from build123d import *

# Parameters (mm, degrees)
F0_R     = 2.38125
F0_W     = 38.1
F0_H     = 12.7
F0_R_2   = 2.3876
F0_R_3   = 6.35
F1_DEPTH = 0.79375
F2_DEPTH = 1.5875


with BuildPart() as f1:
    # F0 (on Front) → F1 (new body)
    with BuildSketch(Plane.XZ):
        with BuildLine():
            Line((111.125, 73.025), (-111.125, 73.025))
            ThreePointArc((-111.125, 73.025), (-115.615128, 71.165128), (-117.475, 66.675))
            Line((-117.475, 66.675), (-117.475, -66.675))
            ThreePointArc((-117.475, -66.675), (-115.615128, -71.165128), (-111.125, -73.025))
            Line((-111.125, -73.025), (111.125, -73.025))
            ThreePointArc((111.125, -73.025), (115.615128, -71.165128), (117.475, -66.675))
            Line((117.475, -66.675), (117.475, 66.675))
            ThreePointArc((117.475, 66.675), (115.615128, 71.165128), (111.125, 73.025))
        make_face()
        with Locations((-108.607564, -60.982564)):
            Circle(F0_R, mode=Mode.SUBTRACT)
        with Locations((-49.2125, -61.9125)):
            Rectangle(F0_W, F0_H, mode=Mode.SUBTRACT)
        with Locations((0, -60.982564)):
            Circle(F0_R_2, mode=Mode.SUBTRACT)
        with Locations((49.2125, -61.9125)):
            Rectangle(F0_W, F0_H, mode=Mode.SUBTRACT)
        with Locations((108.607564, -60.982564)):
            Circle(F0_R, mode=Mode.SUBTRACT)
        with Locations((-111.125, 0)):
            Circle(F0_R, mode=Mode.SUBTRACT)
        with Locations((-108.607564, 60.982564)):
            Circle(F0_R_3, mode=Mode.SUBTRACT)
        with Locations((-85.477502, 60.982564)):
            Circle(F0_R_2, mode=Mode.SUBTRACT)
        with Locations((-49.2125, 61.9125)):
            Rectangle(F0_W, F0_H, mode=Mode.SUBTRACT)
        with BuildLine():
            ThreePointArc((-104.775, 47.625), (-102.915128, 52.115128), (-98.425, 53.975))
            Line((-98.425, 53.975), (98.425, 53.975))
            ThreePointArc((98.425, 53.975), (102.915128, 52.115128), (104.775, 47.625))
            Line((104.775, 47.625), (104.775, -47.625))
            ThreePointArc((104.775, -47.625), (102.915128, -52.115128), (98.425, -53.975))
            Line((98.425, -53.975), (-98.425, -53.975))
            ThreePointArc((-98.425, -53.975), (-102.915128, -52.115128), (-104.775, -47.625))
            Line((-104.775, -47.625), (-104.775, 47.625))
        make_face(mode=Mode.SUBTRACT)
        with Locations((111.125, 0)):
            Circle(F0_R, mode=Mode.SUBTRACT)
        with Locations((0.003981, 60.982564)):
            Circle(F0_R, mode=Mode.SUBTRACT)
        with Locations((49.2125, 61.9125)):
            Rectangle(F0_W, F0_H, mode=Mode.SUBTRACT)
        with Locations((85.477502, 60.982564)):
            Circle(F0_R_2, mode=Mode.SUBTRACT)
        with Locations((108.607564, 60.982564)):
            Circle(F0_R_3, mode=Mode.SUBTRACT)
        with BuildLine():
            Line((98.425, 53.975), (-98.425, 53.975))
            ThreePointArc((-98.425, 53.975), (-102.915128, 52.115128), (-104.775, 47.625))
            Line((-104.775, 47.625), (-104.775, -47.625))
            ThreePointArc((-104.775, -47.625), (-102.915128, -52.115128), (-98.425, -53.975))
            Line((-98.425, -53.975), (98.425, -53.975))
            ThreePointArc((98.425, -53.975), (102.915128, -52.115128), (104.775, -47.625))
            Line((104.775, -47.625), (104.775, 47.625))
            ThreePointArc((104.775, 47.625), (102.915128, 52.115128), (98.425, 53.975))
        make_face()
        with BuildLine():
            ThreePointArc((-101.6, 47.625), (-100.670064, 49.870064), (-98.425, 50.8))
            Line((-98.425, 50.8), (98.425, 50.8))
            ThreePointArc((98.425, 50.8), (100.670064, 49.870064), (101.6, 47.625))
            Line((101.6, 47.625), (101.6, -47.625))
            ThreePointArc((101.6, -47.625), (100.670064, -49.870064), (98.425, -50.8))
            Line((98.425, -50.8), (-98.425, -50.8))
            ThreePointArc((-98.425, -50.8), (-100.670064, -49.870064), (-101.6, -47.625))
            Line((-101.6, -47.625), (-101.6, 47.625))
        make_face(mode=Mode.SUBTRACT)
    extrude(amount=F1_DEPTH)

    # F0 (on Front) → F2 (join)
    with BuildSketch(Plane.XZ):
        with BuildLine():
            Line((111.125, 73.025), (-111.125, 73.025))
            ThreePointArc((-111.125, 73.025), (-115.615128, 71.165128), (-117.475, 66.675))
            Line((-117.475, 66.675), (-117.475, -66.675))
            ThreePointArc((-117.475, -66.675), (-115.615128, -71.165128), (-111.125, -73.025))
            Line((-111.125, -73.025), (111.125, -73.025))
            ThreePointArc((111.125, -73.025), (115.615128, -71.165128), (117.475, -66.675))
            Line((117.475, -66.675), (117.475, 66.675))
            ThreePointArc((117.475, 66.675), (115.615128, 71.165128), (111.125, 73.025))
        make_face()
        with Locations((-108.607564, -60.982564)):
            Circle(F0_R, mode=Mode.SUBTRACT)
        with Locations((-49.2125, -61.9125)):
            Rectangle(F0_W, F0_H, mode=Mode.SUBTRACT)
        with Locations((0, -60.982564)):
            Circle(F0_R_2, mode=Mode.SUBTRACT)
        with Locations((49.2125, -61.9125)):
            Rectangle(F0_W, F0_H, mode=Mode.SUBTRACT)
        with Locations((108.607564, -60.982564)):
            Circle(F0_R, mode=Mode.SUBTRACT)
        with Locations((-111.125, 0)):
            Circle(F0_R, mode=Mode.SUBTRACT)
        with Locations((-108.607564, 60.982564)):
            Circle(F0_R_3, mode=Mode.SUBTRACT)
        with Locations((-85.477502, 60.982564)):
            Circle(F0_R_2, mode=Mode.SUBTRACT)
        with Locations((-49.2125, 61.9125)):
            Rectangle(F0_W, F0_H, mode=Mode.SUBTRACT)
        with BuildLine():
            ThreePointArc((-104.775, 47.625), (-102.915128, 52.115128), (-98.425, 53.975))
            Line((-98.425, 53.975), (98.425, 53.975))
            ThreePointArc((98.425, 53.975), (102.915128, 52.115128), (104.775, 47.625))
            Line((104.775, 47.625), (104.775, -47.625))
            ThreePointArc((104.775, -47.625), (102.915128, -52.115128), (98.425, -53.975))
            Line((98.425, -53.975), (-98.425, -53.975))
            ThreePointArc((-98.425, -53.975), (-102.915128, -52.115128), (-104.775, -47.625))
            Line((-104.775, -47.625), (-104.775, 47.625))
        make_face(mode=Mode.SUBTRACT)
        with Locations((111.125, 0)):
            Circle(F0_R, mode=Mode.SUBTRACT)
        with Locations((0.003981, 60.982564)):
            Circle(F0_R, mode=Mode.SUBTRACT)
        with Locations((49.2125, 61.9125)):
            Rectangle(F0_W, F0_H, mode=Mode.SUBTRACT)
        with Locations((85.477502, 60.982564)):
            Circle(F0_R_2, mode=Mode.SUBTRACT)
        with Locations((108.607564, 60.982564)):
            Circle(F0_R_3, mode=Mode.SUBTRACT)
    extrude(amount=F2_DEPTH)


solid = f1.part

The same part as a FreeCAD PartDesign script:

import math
import FreeCAD as App
import Part
import Sketcher

V = App.Vector
Q = App.Units.Quantity

doc = App.newDocument("Part")
body = doc.addObject("PartDesign::Body", "Body")

# Sketch on XZ plane
sketch1 = doc.addObject("Sketcher::SketchObject", "Sketch")
body.addObject(sketch1)
sketch1.AttachmentSupport = (doc.XZ_Plane, [""])
sketch1.MapMode = "FlatFace"
sketch1.addGeometry(Part.LineSegment(V(111.1, 73, 0), V(-111.1, 73, 0)), False)
sketch1.addGeometry(Part.ArcOfCircle(Part.Circle(V(-111.1, 66.7, 0), V(0, 0, 1), 6.4), math.radians(90), math.radians(180)), False)
sketch1.addGeometry(Part.LineSegment(V(-117.5, 66.7, 0), V(-117.5, -66.7, 0)), False)
sketch1.addGeometry(Part.ArcOfCircle(Part.Circle(V(-111.1, -66.7, 0), V(0, 0, 1), 6.4), math.radians(-180), math.radians(-90)), False)
sketch1.addGeometry(Part.LineSegment(V(-111.1, -73, 0), V(111.1, -73, 0)), False)
sketch1.addGeometry(Part.ArcOfCircle(Part.Circle(V(111.1, -66.7, 0), V(0, 0, 1), 6.4), math.radians(-90), math.radians(0)), False)
sketch1.addGeometry(Part.LineSegment(V(117.5, -66.7, 0), V(117.5, 66.7, 0)), False)
sketch1.addGeometry(Part.ArcOfCircle(Part.Circle(V(111.1, 66.7, 0), V(0, 0, 1), 6.4), math.radians(0), math.radians(90)), False)
sketch1.addGeometry(Part.Circle(V(-108.6, -61, 0), V(0, 0, 1), 2.4), False)
sketch1.addGeometry(Part.LineSegment(V(-30.2, -68.3, 0), V(-68.3, -68.3, 0)), False)
sketch1.addGeometry(Part.LineSegment(V(-68.3, -68.3, 0), V(-68.3, -55.6, 0)), False)
sketch1.addGeometry(Part.LineSegment(V(-68.3, -55.6, 0), V(-30.2, -55.6, 0)), False)
sketch1.addGeometry(Part.LineSegment(V(-30.2, -55.6, 0), V(-30.2, -68.3, 0)), False)
sketch1.addGeometry(Part.Circle(V(0, -61, 0), V(0, 0, 1), 2.4), False)
sketch1.addGeometry(Part.LineSegment(V(68.3, -68.3, 0), V(30.2, -68.3, 0)), False)
sketch1.addGeometry(Part.LineSegment(V(30.2, -68.3, 0), V(30.2, -55.6, 0)), False)
sketch1.addGeometry(Part.LineSegment(V(30.2, -55.6, 0), V(68.3, -55.6, 0)), False)
sketch1.addGeometry(Part.LineSegment(V(68.3, -55.6, 0), V(68.3, -68.3, 0)), False)
sketch1.addGeometry(Part.Circle(V(108.6, -61, 0), V(0, 0, 1), 2.4), False)
sketch1.addGeometry(Part.Circle(V(-111.1, 0, 0), V(0, 0, 1), 2.4), False)
sketch1.addGeometry(Part.LineSegment(V(-101.6, -47.6, 0), V(-101.6, 47.6, 0)), False)
sketch1.addGeometry(Part.ArcOfCircle(Part.Circle(V(-98.4, 47.6, 0), V(0, 0, 1), 3.2), math.radians(90), math.radians(180)), False)
sketch1.addGeometry(Part.LineSegment(V(-98.4, 50.8, 0), V(98.4, 50.8, 0)), False)
sketch1.addGeometry(Part.ArcOfCircle(Part.Circle(V(98.4, 47.6, 0), V(0, 0, 1), 3.2), math.radians(0), math.radians(90)), False)
sketch1.addGeometry(Part.LineSegment(V(101.6, 47.6, 0), V(101.6, -47.6, 0)), False)
sketch1.addGeometry(Part.ArcOfCircle(Part.Circle(V(98.4, -47.6, 0), V(0, 0, 1), 3.2), math.radians(-90), math.radians(0)), False)
sketch1.addGeometry(Part.LineSegment(V(98.4, -50.8, 0), V(-98.4, -50.8, 0)), False)
sketch1.addGeometry(Part.ArcOfCircle(Part.Circle(V(-98.4, -47.6, 0), V(0, 0, 1), 3.2), math.radians(-180), math.radians(-90)), False)
sketch1.addGeometry(Part.Circle(V(-108.6, 61, 0), V(0, 0, 1), 6.3), False)
sketch1.addGeometry(Part.Circle(V(-85.5, 61, 0), V(0, 0, 1), 2.4), False)
sketch1.addGeometry(Part.LineSegment(V(-30.2, 55.6, 0), V(-68.3, 55.6, 0)), False)
sketch1.addGeometry(Part.LineSegment(V(-68.3, 55.6, 0), V(-68.3, 68.3, 0)), False)
sketch1.addGeometry(Part.LineSegment(V(-68.3, 68.3, 0), V(-30.2, 68.3, 0)), False)
sketch1.addGeometry(Part.LineSegment(V(-30.2, 68.3, 0), V(-30.2, 55.6, 0)), False)
sketch1.addGeometry(Part.Circle(V(111.1, 0, 0), V(0, 0, 1), 2.4), False)
sketch1.addGeometry(Part.Circle(V(0, 61, 0), V(0, 0, 1), 2.4), False)
sketch1.addGeometry(Part.LineSegment(V(68.3, 55.6, 0), V(30.2, 55.6, 0)), False)
sketch1.addGeometry(Part.LineSegment(V(30.2, 55.6, 0), V(30.2, 68.3, 0)), False)
sketch1.addGeometry(Part.LineSegment(V(30.2, 68.3, 0), V(68.3, 68.3, 0)), False)
sketch1.addGeometry(Part.LineSegment(V(68.3, 68.3, 0), V(68.3, 55.6, 0)), False)
sketch1.addGeometry(Part.Circle(V(85.5, 61, 0), V(0, 0, 1), 2.4), False)
sketch1.addGeometry(Part.Circle(V(108.6, 61, 0), V(0, 0, 1), 6.3), False)
sketch1.addConstraint(Sketcher.Constraint("Tangent", 0, 2, 1, 1))
sketch1.addConstraint(Sketcher.Constraint("Tangent", 1, 2, 2, 1))
sketch1.addConstraint(Sketcher.Constraint("Tangent", 2, 2, 3, 1))
sketch1.addConstraint(Sketcher.Constraint("Tangent", 3, 2, 4, 1))
sketch1.addConstraint(Sketcher.Constraint("Tangent", 4, 2, 5, 1))
sketch1.addConstraint(Sketcher.Constraint("Tangent", 5, 2, 6, 1))
sketch1.addConstraint(Sketcher.Constraint("Tangent", 6, 2, 7, 1))
sketch1.addConstraint(Sketcher.Constraint("Tangent", 7, 2, 0, 1))
sketch1.addConstraint(Sketcher.Constraint("Coincident", 9, 2, 10, 1))
sketch1.addConstraint(Sketcher.Constraint("Coincident", 10, 2, 11, 1))
sketch1.addConstraint(Sketcher.Constraint("Coincident", 11, 2, 12, 1))
sketch1.addConstraint(Sketcher.Constraint("Coincident", 12, 2, 9, 1))
sketch1.addConstraint(Sketcher.Constraint("Coincident", 14, 2, 15, 1))
sketch1.addConstraint(Sketcher.Constraint("Coincident", 15, 2, 16, 1))
sketch1.addConstraint(Sketcher.Constraint("Coincident", 16, 2, 17, 1))
sketch1.addConstraint(Sketcher.Constraint("Coincident", 17, 2, 14, 1))
sketch1.addConstraint(Sketcher.Constraint("Tangent", 20, 2, 21, 2))
sketch1.addConstraint(Sketcher.Constraint("Tangent", 21, 1, 22, 1))
sketch1.addConstraint(Sketcher.Constraint("Tangent", 22, 2, 23, 2))
sketch1.addConstraint(Sketcher.Constraint("Tangent", 23, 1, 24, 1))
sketch1.addConstraint(Sketcher.Constraint("Tangent", 24, 2, 25, 2))
sketch1.addConstraint(Sketcher.Constraint("Tangent", 25, 1, 26, 1))
sketch1.addConstraint(Sketcher.Constraint("Tangent", 26, 2, 27, 2))
sketch1.addConstraint(Sketcher.Constraint("Tangent", 27, 1, 20, 1))
sketch1.addConstraint(Sketcher.Constraint("Coincident", 30, 2, 31, 1))
sketch1.addConstraint(Sketcher.Constraint("Coincident", 31, 2, 32, 1))
sketch1.addConstraint(Sketcher.Constraint("Coincident", 32, 2, 33, 1))
sketch1.addConstraint(Sketcher.Constraint("Coincident", 33, 2, 30, 1))
sketch1.addConstraint(Sketcher.Constraint("Coincident", 36, 2, 37, 1))
sketch1.addConstraint(Sketcher.Constraint("Coincident", 37, 2, 38, 1))
sketch1.addConstraint(Sketcher.Constraint("Coincident", 38, 2, 39, 1))
sketch1.addConstraint(Sketcher.Constraint("Coincident", 39, 2, 36, 1))
sketch1.addConstraint(Sketcher.Constraint("Horizontal", 0))
sketch1.addConstraint(Sketcher.Constraint("Vertical", 2))
sketch1.addConstraint(Sketcher.Constraint("Horizontal", 4))
sketch1.addConstraint(Sketcher.Constraint("Vertical", 6))
sketch1.addConstraint(Sketcher.Constraint("Horizontal", 9))
sketch1.addConstraint(Sketcher.Constraint("Vertical", 10))
sketch1.addConstraint(Sketcher.Constraint("Horizontal", 11))
sketch1.addConstraint(Sketcher.Constraint("Vertical", 12))
sketch1.addConstraint(Sketcher.Constraint("Horizontal", 14))
sketch1.addConstraint(Sketcher.Constraint("Vertical", 15))
sketch1.addConstraint(Sketcher.Constraint("Horizontal", 16))
sketch1.addConstraint(Sketcher.Constraint("Vertical", 17))
sketch1.addConstraint(Sketcher.Constraint("Vertical", 20))
sketch1.addConstraint(Sketcher.Constraint("Horizontal", 22))
sketch1.addConstraint(Sketcher.Constraint("Vertical", 24))
sketch1.addConstraint(Sketcher.Constraint("Horizontal", 26))
sketch1.addConstraint(Sketcher.Constraint("Horizontal", 30))
sketch1.addConstraint(Sketcher.Constraint("Vertical", 31))
sketch1.addConstraint(Sketcher.Constraint("Horizontal", 32))
sketch1.addConstraint(Sketcher.Constraint("Vertical", 33))
sketch1.addConstraint(Sketcher.Constraint("Horizontal", 36))
sketch1.addConstraint(Sketcher.Constraint("Vertical", 37))
sketch1.addConstraint(Sketcher.Constraint("Horizontal", 38))
sketch1.addConstraint(Sketcher.Constraint("Vertical", 39))
sketch1.addConstraint(Sketcher.Constraint("Equal", 1, 3))
sketch1.addConstraint(Sketcher.Constraint("Equal", 3, 5))
sketch1.addConstraint(Sketcher.Constraint("Equal", 5, 7))
sketch1.addConstraint(Sketcher.Constraint("Equal", 8, 18))
sketch1.addConstraint(Sketcher.Constraint("Equal", 18, 19))
sketch1.addConstraint(Sketcher.Constraint("Equal", 21, 23))
sketch1.addConstraint(Sketcher.Constraint("Equal", 23, 25))
sketch1.addConstraint(Sketcher.Constraint("Equal", 25, 27))
sketch1.addConstraint(Sketcher.Constraint("Equal", 7, 28))
sketch1.addConstraint(Sketcher.Constraint("Equal", 13, 29))
sketch1.addConstraint(Sketcher.Constraint("Equal", 19, 34))
sketch1.addConstraint(Sketcher.Constraint("Equal", 34, 35))
sketch1.addConstraint(Sketcher.Constraint("Equal", 29, 40))
sketch1.addConstraint(Sketcher.Constraint("Equal", 28, 41))
sketch1.addConstraint(Sketcher.Constraint("Symmetric", 1, 3, 5, 3, -1, 1))
sketch1.addConstraint(Sketcher.Constraint("Symmetric", 21, 3, 25, 3, -1, 1))
sketch1.addConstraint(Sketcher.Constraint("Symmetric", 18, 3, 28, 3, -1, 1))
sketch1.addConstraint(Sketcher.Constraint("Symmetric", 19, 3, 34, 3, -1, 1))
sketch1.addConstraint(Sketcher.Constraint("Symmetric", 8, 3, 41, 3, -1, 1))
sketch1.addConstraint(Sketcher.Constraint("Symmetric", 16, 2, 30, 2, -1, 1))
sketch1.addConstraint(Sketcher.Constraint("Symmetric", 14, 2, 32, 2, -1, 1))
sketch1.addConstraint(Sketcher.Constraint("Symmetric", 11, 2, 36, 2, -1, 1))
sketch1.addConstraint(Sketcher.Constraint("Symmetric", 9, 2, 38, 2, -1, 1))
sketch1.addConstraint(Sketcher.Constraint("Symmetric", 8, 3, 18, 3, -2))
sketch1.addConstraint(Sketcher.Constraint("Symmetric", 29, 3, 40, 3, -2))
sketch1.addConstraint(Sketcher.Constraint("Symmetric", 12, 2, 14, 2, -2))
sketch1.addConstraint(Sketcher.Constraint("Symmetric", 10, 2, 16, 2, -2))
sketch1.addConstraint(Sketcher.Constraint("PointOnObject", 13, 3, -2))
sketch1.addConstraint(Sketcher.Constraint("PointOnObject", 19, 3, -1))
sketch1.addConstraint(Sketcher.Constraint("Horizontal", 8, 3, 13, 3))
sketch1.addConstraint(Sketcher.Constraint("Horizontal", 28, 3, 29, 3))
sketch1.addConstraint(Sketcher.Constraint("Horizontal", 29, 3, 35, 3))
sketch1.addConstraint(Sketcher.Constraint("Vertical", 3, 3, 19, 3))
sketch1.addConstraint(Sketcher.Constraint("Diameter", 28, Q("0.5 in")))
sketch1.addConstraint(Sketcher.Constraint("Diameter", 8, Q("0.1875 in")))
sketch1.addConstraint(Sketcher.Constraint("Diameter", 13, Q("0.188 in")))
sketch1.addConstraint(Sketcher.Constraint("DistanceX", 9, 2, 9, 1, Q("1.5 in")))
sketch1.addConstraint(Sketcher.Constraint("DistanceY", 10, 1, 10, 2, Q("0.5 in")))
sketch1.addConstraint(Sketcher.Constraint("DistanceX", 20, 2, -1, 1, Q("4 in")))
sketch1.addConstraint(Sketcher.Constraint("DistanceY", -1, 1, 21, 1, Q("2 in")))
sketch1.addConstraint(Sketcher.Constraint("Radius", 21, Q("0.125 in")))
sketch1.addConstraint(Sketcher.Constraint("DistanceY", 21, 3, 0, 2, Q("1 in")))
sketch1.addConstraint(Sketcher.Constraint("DistanceX", 0, 2, 0, 1, Q("8.75 in")))
sketch1.addConstraint(Sketcher.Constraint("DistanceX", 9, 2, -1, 1, Q("2.6875 in")))
sketch1.addConstraint(Sketcher.Constraint("DistanceY", 9, 2, -1, 1, Q("2.6875 in")))
sketch1.addConstraint(Sketcher.Constraint("DistanceX", 29, 3, -1, 1, Q("85.477502 mm")))
sketch1.addConstraint(Sketcher.Constraint("DistanceX", -1, 1, 35, 3, Q("0.003981 mm")))
sketch1.addConstraint(Sketcher.Constraint("DistanceX", 8, 3, 18, 3, Q("217.215128 mm")))
sketch1.addConstraint(Sketcher.Constraint("DistanceY", 8, 3, 28, 3, Q("121.965128 mm")))
pad1 = doc.addObject("PartDesign::Pad", "Pad")
body.addObject(pad1)
pad1.Profile = sketch1
pad1.Length = Q("0.03125 in")

# Sketch on XZ plane
sketch2 = doc.addObject("Sketcher::SketchObject", "Sketch001")
body.addObject(sketch2)
sketch2.AttachmentSupport = (doc.XZ_Plane, [""])
sketch2.MapMode = "FlatFace"
sketch2.addGeometry(Part.LineSegment(V(111.1, 73, 0), V(-111.1, 73, 0)), False)
sketch2.addGeometry(Part.ArcOfCircle(Part.Circle(V(-111.1, 66.7, 0), V(0, 0, 1), 6.4), math.radians(90), math.radians(180)), False)
sketch2.addGeometry(Part.LineSegment(V(-117.5, 66.7, 0), V(-117.5, -66.7, 0)), False)
sketch2.addGeometry(Part.ArcOfCircle(Part.Circle(V(-111.1, -66.7, 0), V(0, 0, 1), 6.4), math.radians(-180), math.radians(-90)), False)
sketch2.addGeometry(Part.LineSegment(V(-111.1, -73, 0), V(111.1, -73, 0)), False)
sketch2.addGeometry(Part.ArcOfCircle(Part.Circle(V(111.1, -66.7, 0), V(0, 0, 1), 6.4), math.radians(-90), math.radians(0)), False)
sketch2.addGeometry(Part.LineSegment(V(117.5, -66.7, 0), V(117.5, 66.7, 0)), False)
sketch2.addGeometry(Part.ArcOfCircle(Part.Circle(V(111.1, 66.7, 0), V(0, 0, 1), 6.4), math.radians(0), math.radians(90)), False)
sketch2.addGeometry(Part.Circle(V(-108.6, -61, 0), V(0, 0, 1), 2.4), False)
sketch2.addGeometry(Part.LineSegment(V(-30.2, -68.3, 0), V(-68.3, -68.3, 0)), False)
sketch2.addGeometry(Part.LineSegment(V(-68.3, -68.3, 0), V(-68.3, -55.6, 0)), False)
sketch2.addGeometry(Part.LineSegment(V(-68.3, -55.6, 0), V(-30.2, -55.6, 0)), False)
sketch2.addGeometry(Part.LineSegment(V(-30.2, -55.6, 0), V(-30.2, -68.3, 0)), False)
sketch2.addGeometry(Part.Circle(V(0, -61, 0), V(0, 0, 1), 2.4), False)
sketch2.addGeometry(Part.LineSegment(V(68.3, -68.3, 0), V(30.2, -68.3, 0)), False)
sketch2.addGeometry(Part.LineSegment(V(30.2, -68.3, 0), V(30.2, -55.6, 0)), False)
sketch2.addGeometry(Part.LineSegment(V(30.2, -55.6, 0), V(68.3, -55.6, 0)), False)
sketch2.addGeometry(Part.LineSegment(V(68.3, -55.6, 0), V(68.3, -68.3, 0)), False)
sketch2.addGeometry(Part.Circle(V(108.6, -61, 0), V(0, 0, 1), 2.4), False)
sketch2.addGeometry(Part.Circle(V(-111.1, 0, 0), V(0, 0, 1), 2.4), False)
sketch2.addGeometry(Part.LineSegment(V(-104.8, -47.6, 0), V(-104.8, 47.6, 0)), False)
sketch2.addGeometry(Part.ArcOfCircle(Part.Circle(V(-98.4, 47.6, 0), V(0, 0, 1), 6.4), math.radians(90), math.radians(180)), False)
sketch2.addGeometry(Part.LineSegment(V(-98.4, 54, 0), V(98.4, 54, 0)), False)
sketch2.addGeometry(Part.ArcOfCircle(Part.Circle(V(98.4, 47.6, 0), V(0, 0, 1), 6.4), math.radians(0), math.radians(90)), False)
sketch2.addGeometry(Part.LineSegment(V(104.8, 47.6, 0), V(104.8, -47.6, 0)), False)
sketch2.addGeometry(Part.ArcOfCircle(Part.Circle(V(98.4, -47.6, 0), V(0, 0, 1), 6.4), math.radians(-90), math.radians(0)), False)
sketch2.addGeometry(Part.LineSegment(V(98.4, -54, 0), V(-98.4, -54, 0)), False)
sketch2.addGeometry(Part.ArcOfCircle(Part.Circle(V(-98.4, -47.6, 0), V(0, 0, 1), 6.4), math.radians(-180), math.radians(-90)), False)
sketch2.addGeometry(Part.Circle(V(-108.6, 61, 0), V(0, 0, 1), 6.3), False)
sketch2.addGeometry(Part.Circle(V(-85.5, 61, 0), V(0, 0, 1), 2.4), False)
sketch2.addGeometry(Part.LineSegment(V(-30.2, 55.6, 0), V(-68.3, 55.6, 0)), False)
sketch2.addGeometry(Part.LineSegment(V(-68.3, 55.6, 0), V(-68.3, 68.3, 0)), False)
sketch2.addGeometry(Part.LineSegment(V(-68.3, 68.3, 0), V(-30.2, 68.3, 0)), False)
sketch2.addGeometry(Part.LineSegment(V(-30.2, 68.3, 0), V(-30.2, 55.6, 0)), False)
sketch2.addGeometry(Part.Circle(V(111.1, 0, 0), V(0, 0, 1), 2.4), False)
sketch2.addGeometry(Part.Circle(V(0, 61, 0), V(0, 0, 1), 2.4), False)
sketch2.addGeometry(Part.LineSegment(V(68.3, 55.6, 0), V(30.2, 55.6, 0)), False)
sketch2.addGeometry(Part.LineSegment(V(30.2, 55.6, 0), V(30.2, 68.3, 0)), False)
sketch2.addGeometry(Part.LineSegment(V(30.2, 68.3, 0), V(68.3, 68.3, 0)), False)
sketch2.addGeometry(Part.LineSegment(V(68.3, 68.3, 0), V(68.3, 55.6, 0)), False)
sketch2.addGeometry(Part.Circle(V(85.5, 61, 0), V(0, 0, 1), 2.4), False)
sketch2.addGeometry(Part.Circle(V(108.6, 61, 0), V(0, 0, 1), 6.3), False)
sketch2.addConstraint(Sketcher.Constraint("Tangent", 0, 2, 1, 1))
sketch2.addConstraint(Sketcher.Constraint("Tangent", 1, 2, 2, 1))
sketch2.addConstraint(Sketcher.Constraint("Tangent", 2, 2, 3, 1))
sketch2.addConstraint(Sketcher.Constraint("Tangent", 3, 2, 4, 1))
sketch2.addConstraint(Sketcher.Constraint("Tangent", 4, 2, 5, 1))
sketch2.addConstraint(Sketcher.Constraint("Tangent", 5, 2, 6, 1))
sketch2.addConstraint(Sketcher.Constraint("Tangent", 6, 2, 7, 1))
sketch2.addConstraint(Sketcher.Constraint("Tangent", 7, 2, 0, 1))
sketch2.addConstraint(Sketcher.Constraint("Coincident", 9, 2, 10, 1))
sketch2.addConstraint(Sketcher.Constraint("Coincident", 10, 2, 11, 1))
sketch2.addConstraint(Sketcher.Constraint("Coincident", 11, 2, 12, 1))
sketch2.addConstraint(Sketcher.Constraint("Coincident", 12, 2, 9, 1))
sketch2.addConstraint(Sketcher.Constraint("Coincident", 14, 2, 15, 1))
sketch2.addConstraint(Sketcher.Constraint("Coincident", 15, 2, 16, 1))
sketch2.addConstraint(Sketcher.Constraint("Coincident", 16, 2, 17, 1))
sketch2.addConstraint(Sketcher.Constraint("Coincident", 17, 2, 14, 1))
sketch2.addConstraint(Sketcher.Constraint("Tangent", 20, 2, 21, 2))
sketch2.addConstraint(Sketcher.Constraint("Tangent", 21, 1, 22, 1))
sketch2.addConstraint(Sketcher.Constraint("Tangent", 22, 2, 23, 2))
sketch2.addConstraint(Sketcher.Constraint("Tangent", 23, 1, 24, 1))
sketch2.addConstraint(Sketcher.Constraint("Tangent", 24, 2, 25, 2))
sketch2.addConstraint(Sketcher.Constraint("Tangent", 25, 1, 26, 1))
sketch2.addConstraint(Sketcher.Constraint("Tangent", 26, 2, 27, 2))
sketch2.addConstraint(Sketcher.Constraint("Tangent", 27, 1, 20, 1))
sketch2.addConstraint(Sketcher.Constraint("Coincident", 30, 2, 31, 1))
sketch2.addConstraint(Sketcher.Constraint("Coincident", 31, 2, 32, 1))
sketch2.addConstraint(Sketcher.Constraint("Coincident", 32, 2, 33, 1))
sketch2.addConstraint(Sketcher.Constraint("Coincident", 33, 2, 30, 1))
sketch2.addConstraint(Sketcher.Constraint("Coincident", 36, 2, 37, 1))
sketch2.addConstraint(Sketcher.Constraint("Coincident", 37, 2, 38, 1))
sketch2.addConstraint(Sketcher.Constraint("Coincident", 38, 2, 39, 1))
sketch2.addConstraint(Sketcher.Constraint("Coincident", 39, 2, 36, 1))
sketch2.addConstraint(Sketcher.Constraint("Horizontal", 0))
sketch2.addConstraint(Sketcher.Constraint("Vertical", 2))
sketch2.addConstraint(Sketcher.Constraint("Horizontal", 4))
sketch2.addConstraint(Sketcher.Constraint("Vertical", 6))
sketch2.addConstraint(Sketcher.Constraint("Horizontal", 9))
sketch2.addConstraint(Sketcher.Constraint("Vertical", 10))
sketch2.addConstraint(Sketcher.Constraint("Horizontal", 11))
sketch2.addConstraint(Sketcher.Constraint("Vertical", 12))
sketch2.addConstraint(Sketcher.Constraint("Horizontal", 14))
sketch2.addConstraint(Sketcher.Constraint("Vertical", 15))
sketch2.addConstraint(Sketcher.Constraint("Horizontal", 16))
sketch2.addConstraint(Sketcher.Constraint("Vertical", 17))
sketch2.addConstraint(Sketcher.Constraint("Vertical", 20))
sketch2.addConstraint(Sketcher.Constraint("Horizontal", 22))
sketch2.addConstraint(Sketcher.Constraint("Vertical", 24))
sketch2.addConstraint(Sketcher.Constraint("Horizontal", 26))
sketch2.addConstraint(Sketcher.Constraint("Horizontal", 30))
sketch2.addConstraint(Sketcher.Constraint("Vertical", 31))
sketch2.addConstraint(Sketcher.Constraint("Horizontal", 32))
sketch2.addConstraint(Sketcher.Constraint("Vertical", 33))
sketch2.addConstraint(Sketcher.Constraint("Horizontal", 36))
sketch2.addConstraint(Sketcher.Constraint("Vertical", 37))
sketch2.addConstraint(Sketcher.Constraint("Horizontal", 38))
sketch2.addConstraint(Sketcher.Constraint("Vertical", 39))
sketch2.addConstraint(Sketcher.Constraint("Equal", 1, 3))
sketch2.addConstraint(Sketcher.Constraint("Equal", 3, 5))
sketch2.addConstraint(Sketcher.Constraint("Equal", 5, 7))
sketch2.addConstraint(Sketcher.Constraint("Equal", 8, 18))
sketch2.addConstraint(Sketcher.Constraint("Equal", 18, 19))
sketch2.addConstraint(Sketcher.Constraint("Equal", 7, 21))
sketch2.addConstraint(Sketcher.Constraint("Equal", 21, 23))
sketch2.addConstraint(Sketcher.Constraint("Equal", 23, 25))
sketch2.addConstraint(Sketcher.Constraint("Equal", 25, 27))
sketch2.addConstraint(Sketcher.Constraint("Equal", 27, 28))
sketch2.addConstraint(Sketcher.Constraint("Equal", 13, 29))
sketch2.addConstraint(Sketcher.Constraint("Equal", 19, 34))
sketch2.addConstraint(Sketcher.Constraint("Equal", 34, 35))
sketch2.addConstraint(Sketcher.Constraint("Equal", 29, 40))
sketch2.addConstraint(Sketcher.Constraint("Equal", 28, 41))
sketch2.addConstraint(Sketcher.Constraint("Symmetric", 1, 3, 5, 3, -1, 1))
sketch2.addConstraint(Sketcher.Constraint("Symmetric", 21, 3, 25, 3, -1, 1))
sketch2.addConstraint(Sketcher.Constraint("Symmetric", 18, 3, 28, 3, -1, 1))
sketch2.addConstraint(Sketcher.Constraint("Symmetric", 19, 3, 34, 3, -1, 1))
sketch2.addConstraint(Sketcher.Constraint("Symmetric", 8, 3, 41, 3, -1, 1))
sketch2.addConstraint(Sketcher.Constraint("Symmetric", 16, 2, 30, 2, -1, 1))
sketch2.addConstraint(Sketcher.Constraint("Symmetric", 14, 2, 32, 2, -1, 1))
sketch2.addConstraint(Sketcher.Constraint("Symmetric", 11, 2, 36, 2, -1, 1))
sketch2.addConstraint(Sketcher.Constraint("Symmetric", 9, 2, 38, 2, -1, 1))
sketch2.addConstraint(Sketcher.Constraint("Symmetric", 8, 3, 18, 3, -2))
sketch2.addConstraint(Sketcher.Constraint("Symmetric", 29, 3, 40, 3, -2))
sketch2.addConstraint(Sketcher.Constraint("Symmetric", 12, 2, 14, 2, -2))
sketch2.addConstraint(Sketcher.Constraint("Symmetric", 10, 2, 16, 2, -2))
sketch2.addConstraint(Sketcher.Constraint("PointOnObject", 13, 3, -2))
sketch2.addConstraint(Sketcher.Constraint("PointOnObject", 19, 3, -1))
sketch2.addConstraint(Sketcher.Constraint("Horizontal", 8, 3, 13, 3))
sketch2.addConstraint(Sketcher.Constraint("Horizontal", 28, 3, 29, 3))
sketch2.addConstraint(Sketcher.Constraint("Horizontal", 29, 3, 35, 3))
sketch2.addConstraint(Sketcher.Constraint("Vertical", 3, 3, 19, 3))
sketch2.addConstraint(Sketcher.Constraint("Diameter", 28, Q("0.5 in")))
sketch2.addConstraint(Sketcher.Constraint("Diameter", 8, Q("0.1875 in")))
sketch2.addConstraint(Sketcher.Constraint("Diameter", 13, Q("0.188 in")))
sketch2.addConstraint(Sketcher.Constraint("DistanceX", 9, 2, 9, 1, Q("1.5 in")))
sketch2.addConstraint(Sketcher.Constraint("DistanceY", 10, 1, 10, 2, Q("0.5 in")))
sketch2.addConstraint(Sketcher.Constraint("DistanceY", 21, 3, 0, 2, Q("1 in")))
sketch2.addConstraint(Sketcher.Constraint("DistanceX", 0, 2, 0, 1, Q("8.75 in")))
sketch2.addConstraint(Sketcher.Constraint("DistanceX", 22, 1, 22, 2, Q("7.75 in")))
sketch2.addConstraint(Sketcher.Constraint("DistanceY", 2, 2, 2, 1, Q("5.25 in")))
sketch2.addConstraint(Sketcher.Constraint("DistanceX", 9, 2, -1, 1, Q("2.6875 in")))
sketch2.addConstraint(Sketcher.Constraint("DistanceY", 9, 2, -1, 1, Q("2.6875 in")))
sketch2.addConstraint(Sketcher.Constraint("DistanceX", 29, 3, -1, 1, Q("85.477502 mm")))
sketch2.addConstraint(Sketcher.Constraint("DistanceX", -1, 1, 35, 3, Q("0.003981 mm")))
sketch2.addConstraint(Sketcher.Constraint("DistanceX", 8, 3, 18, 3, Q("217.215128 mm")))
sketch2.addConstraint(Sketcher.Constraint("DistanceY", 8, 3, 28, 3, Q("121.965128 mm")))
pad2 = doc.addObject("PartDesign::Pad", "Pad001")
body.addObject(pad2)
pad2.Profile = sketch2
pad2.Length = Q("0.0625 in")

doc.recompute()
